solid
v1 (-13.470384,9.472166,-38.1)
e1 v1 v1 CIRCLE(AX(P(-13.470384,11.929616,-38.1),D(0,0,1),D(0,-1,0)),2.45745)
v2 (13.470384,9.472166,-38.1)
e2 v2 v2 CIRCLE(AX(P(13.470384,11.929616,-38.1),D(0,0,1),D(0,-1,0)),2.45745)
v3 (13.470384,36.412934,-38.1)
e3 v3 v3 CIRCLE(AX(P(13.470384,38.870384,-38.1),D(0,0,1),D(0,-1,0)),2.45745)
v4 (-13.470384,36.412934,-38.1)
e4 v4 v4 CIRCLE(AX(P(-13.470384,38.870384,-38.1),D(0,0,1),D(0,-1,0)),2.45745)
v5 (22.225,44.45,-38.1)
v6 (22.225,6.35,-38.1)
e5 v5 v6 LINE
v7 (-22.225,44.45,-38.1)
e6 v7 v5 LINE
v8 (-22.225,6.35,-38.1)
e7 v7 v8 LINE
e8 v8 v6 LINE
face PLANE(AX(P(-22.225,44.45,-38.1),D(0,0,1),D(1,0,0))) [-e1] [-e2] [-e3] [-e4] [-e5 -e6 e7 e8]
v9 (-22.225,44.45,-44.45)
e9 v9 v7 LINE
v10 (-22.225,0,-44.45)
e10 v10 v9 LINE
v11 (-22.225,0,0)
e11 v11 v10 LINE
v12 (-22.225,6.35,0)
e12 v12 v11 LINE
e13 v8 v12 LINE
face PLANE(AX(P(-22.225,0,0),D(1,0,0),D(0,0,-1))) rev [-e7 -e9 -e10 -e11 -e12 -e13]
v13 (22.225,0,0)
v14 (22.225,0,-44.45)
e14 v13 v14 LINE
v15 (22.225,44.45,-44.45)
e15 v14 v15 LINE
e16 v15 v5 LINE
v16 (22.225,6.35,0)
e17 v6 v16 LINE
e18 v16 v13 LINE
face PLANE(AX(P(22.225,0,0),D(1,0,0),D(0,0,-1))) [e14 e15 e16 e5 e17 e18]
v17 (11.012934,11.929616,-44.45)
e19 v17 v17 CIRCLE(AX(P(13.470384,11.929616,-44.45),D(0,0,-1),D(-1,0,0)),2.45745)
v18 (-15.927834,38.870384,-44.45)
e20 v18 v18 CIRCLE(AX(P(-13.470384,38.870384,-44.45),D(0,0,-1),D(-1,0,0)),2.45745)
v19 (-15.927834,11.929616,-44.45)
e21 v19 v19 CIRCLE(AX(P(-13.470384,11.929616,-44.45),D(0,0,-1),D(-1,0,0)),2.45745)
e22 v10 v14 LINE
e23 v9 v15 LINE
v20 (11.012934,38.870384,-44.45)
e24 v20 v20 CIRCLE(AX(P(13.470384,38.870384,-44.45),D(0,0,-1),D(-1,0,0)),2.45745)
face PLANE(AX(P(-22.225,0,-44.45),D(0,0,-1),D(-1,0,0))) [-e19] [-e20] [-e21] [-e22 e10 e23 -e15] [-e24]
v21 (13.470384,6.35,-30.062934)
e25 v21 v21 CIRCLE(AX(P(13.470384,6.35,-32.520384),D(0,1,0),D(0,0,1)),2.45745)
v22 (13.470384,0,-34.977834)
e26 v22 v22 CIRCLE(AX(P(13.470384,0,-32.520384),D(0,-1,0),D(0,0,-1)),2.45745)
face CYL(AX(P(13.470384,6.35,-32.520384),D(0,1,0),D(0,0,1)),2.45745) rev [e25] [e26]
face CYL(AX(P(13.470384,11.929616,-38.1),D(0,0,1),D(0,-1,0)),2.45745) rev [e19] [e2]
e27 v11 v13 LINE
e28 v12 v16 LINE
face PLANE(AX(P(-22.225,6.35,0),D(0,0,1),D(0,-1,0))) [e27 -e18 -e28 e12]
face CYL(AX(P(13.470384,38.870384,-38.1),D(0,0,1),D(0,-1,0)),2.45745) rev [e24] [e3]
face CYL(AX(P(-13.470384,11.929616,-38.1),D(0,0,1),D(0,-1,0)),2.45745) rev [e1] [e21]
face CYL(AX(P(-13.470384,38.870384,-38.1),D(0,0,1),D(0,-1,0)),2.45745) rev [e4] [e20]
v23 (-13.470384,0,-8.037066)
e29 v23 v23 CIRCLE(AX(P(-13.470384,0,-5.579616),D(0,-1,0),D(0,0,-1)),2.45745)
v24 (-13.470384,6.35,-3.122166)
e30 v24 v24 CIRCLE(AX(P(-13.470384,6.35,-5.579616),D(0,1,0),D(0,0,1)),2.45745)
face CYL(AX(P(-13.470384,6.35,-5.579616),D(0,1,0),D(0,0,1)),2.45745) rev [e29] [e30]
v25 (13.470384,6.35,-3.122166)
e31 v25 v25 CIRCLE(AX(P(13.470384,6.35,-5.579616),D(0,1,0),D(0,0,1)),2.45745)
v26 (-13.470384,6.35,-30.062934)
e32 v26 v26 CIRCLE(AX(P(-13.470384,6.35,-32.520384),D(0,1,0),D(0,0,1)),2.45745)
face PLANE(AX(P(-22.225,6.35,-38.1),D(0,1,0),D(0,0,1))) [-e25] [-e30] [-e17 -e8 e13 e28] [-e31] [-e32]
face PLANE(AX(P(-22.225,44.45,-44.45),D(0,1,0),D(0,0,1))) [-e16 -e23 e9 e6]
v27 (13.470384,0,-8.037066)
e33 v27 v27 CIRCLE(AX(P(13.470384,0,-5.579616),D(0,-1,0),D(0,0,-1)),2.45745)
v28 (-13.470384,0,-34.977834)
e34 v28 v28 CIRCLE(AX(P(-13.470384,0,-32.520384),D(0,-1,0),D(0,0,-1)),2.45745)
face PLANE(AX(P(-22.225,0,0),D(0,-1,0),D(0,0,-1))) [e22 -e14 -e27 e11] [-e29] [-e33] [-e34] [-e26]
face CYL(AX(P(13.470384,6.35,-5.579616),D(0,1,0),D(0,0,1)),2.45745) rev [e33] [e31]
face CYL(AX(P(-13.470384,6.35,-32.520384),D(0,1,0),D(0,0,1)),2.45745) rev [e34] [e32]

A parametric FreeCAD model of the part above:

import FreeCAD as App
import Part
import Sketcher
Q = App.Units.Quantity


def add_polygon(sketch, points):
    """Adds a closed chain of lines whose ends are joined by coincident constraints."""
    first, n = sketch.GeometryCount, len(points)
    for a, b in zip(points, points[1:] + points[:1]):
        sketch.addGeometry(Part.LineSegment(App.Vector(*a, 0), App.Vector(*b, 0)), False)
    for i in range(n):
        sketch.addConstraint(Sketcher.Constraint("Coincident", first + i, 2, first + (i + 1) % n, 1))

doc = App.newDocument("Part")
params = doc.addObject("Spreadsheet::Sheet", "Params")
for row, (alias, value) in enumerate([
    ("sketch1_width", "1.5 in"),
    ("sketch1_width2", "1.75 in"),
    ("pad1_length", "1.75 in"),
    ("hole_diameter", "0.1935 in"),
], start=1):
    params.set(f"A{row}", alias)
    params.set(f"B{row}", "=" + value)
    params.setAlias(f"B{row}", alias)

body = doc.addObject("PartDesign::Body", "Body")

# Sketch on YZ plane
sketch1 = body.newObject("Sketcher::SketchObject", "Sketch")
sketch1.AttachmentSupport = (doc.getObject("YZ_Plane"), [""])
sketch1.MapMode = "FlatFace"
add_polygon(sketch1, [(0, 0), (0, -44), (44, -44), (44, -38), (6, -38), (6, 0)])  # lines 0-5
sketch1.addConstraint(Sketcher.Constraint("Vertical", 0))
sketch1.addConstraint(Sketcher.Constraint("Horizontal", 1))
sketch1.addConstraint(Sketcher.Constraint("Vertical", 2))
sketch1.addConstraint(Sketcher.Constraint("Horizontal", 3))
sketch1.addConstraint(Sketcher.Constraint("Vertical", 4))
sketch1.addConstraint(Sketcher.Constraint("Horizontal", 5))
sketch1.addConstraint(Sketcher.Constraint("Coincident", 5, 2, -1, 1))
sketch1.addConstraint(Sketcher.Constraint("Equal", 1, 0))
sketch1.addConstraint(Sketcher.Constraint("Equal", 5, 2))
sketch1.addConstraint(Sketcher.Constraint("DistanceX", 3, 2, 3, 1, Q("1.5 in")))
sketch1.addConstraint(Sketcher.Constraint("DistanceX", 1, 1, 1, 2, Q("1.75 in")))
sketch1.setExpression("Constraints[15]", "Params.sketch1_width")
sketch1.setExpression("Constraints[16]", "Params.sketch1_width2")
pad1 = body.newObject("PartDesign::Pad", "Pad")
pad1.Profile = sketch1
pad1.setExpression("Length", "Params.pad1_length")
pad1.Midplane = True

# Sketch on XZ plane
sketch2 = body.newObject("Sketcher::SketchObject", "Sketch001")
sketch2.AttachmentSupport = (doc.getObject("XZ_Plane"), [""])
sketch2.MapMode = "FlatFace"
sketch2.AttachmentOffset = App.Placement(App.Vector(0, 0, -0.25 * 25.4), App.Rotation())
sketch2.addGeometry(Part.Circle(App.Vector(13.5, -5.6, 0), App.Vector(0, 0, 1), 2.5), False)
sketch2.addGeometry(Part.Circle(App.Vector(-13.5, -32.5, 0), App.Vector(0, 0, 1), 2.5), False)
sketch2.addGeometry(Part.Circle(App.Vector(-13.5, -5.6, 0), App.Vector(0, 0, 1), 2.5), False)
sketch2.addGeometry(Part.Circle(App.Vector(13.5, -32.5, 0), App.Vector(0, 0, 1), 2.5), False)
sketch2.addConstraint(Sketcher.Constraint("Equal", 0, 1))
sketch2.addConstraint(Sketcher.Constraint("Equal", 1, 2))
sketch2.addConstraint(Sketcher.Constraint("Equal", 2, 3))
sketch2.addConstraint(Sketcher.Constraint("Symmetric", 0, 3, 2, 3, -2))
sketch2.addConstraint(Sketcher.Constraint("Symmetric", 1, 3, 3, 3, -2))
sketch2.addConstraint(Sketcher.Constraint("Vertical", 1, 3, 2, 3))
sketch2.addConstraint(Sketcher.Constraint("Diameter", 0, Q("0.1935 in")))
sketch2.addConstraint(Sketcher.Constraint("DistanceX", 1, 3, 0, 3, 26.940768))
sketch2.addConstraint(Sketcher.Constraint("DistanceY", 1, 3, 0, 3, 26.940768))
sketch2.addConstraint(Sketcher.Constraint("DistanceY", 0, 3, -1, 1, 5.579616))
doc.recompute()
hole = body.newObject("PartDesign::Hole", "Hole")
hole.Profile = sketch2
hole.ThreadType = "None"
hole.setExpression("Diameter", "Params.hole_diameter")
hole.DepthType = "ThroughAll"
hole.Reversed = True
doc.recompute()

datumplane = body.newObject("PartDesign::Plane", "DatumPlane")
datumplane.Placement = App.Placement(App.Vector(0, 22.225, -22.225), App.Rotation(App.Vector(0, -0.707106781, -0.707106781), App.Vector(-1, 0, 0), App.Vector(0, 0.707106781, -0.707106781), "ZXY"))
mirrored = body.newObject("PartDesign::Mirrored", "Mirrored")
mirrored.Originals = [hole]
mirrored.MirrorPlane = (datumplane, [""])
body.Tip = mirrored

doc.recompute()
